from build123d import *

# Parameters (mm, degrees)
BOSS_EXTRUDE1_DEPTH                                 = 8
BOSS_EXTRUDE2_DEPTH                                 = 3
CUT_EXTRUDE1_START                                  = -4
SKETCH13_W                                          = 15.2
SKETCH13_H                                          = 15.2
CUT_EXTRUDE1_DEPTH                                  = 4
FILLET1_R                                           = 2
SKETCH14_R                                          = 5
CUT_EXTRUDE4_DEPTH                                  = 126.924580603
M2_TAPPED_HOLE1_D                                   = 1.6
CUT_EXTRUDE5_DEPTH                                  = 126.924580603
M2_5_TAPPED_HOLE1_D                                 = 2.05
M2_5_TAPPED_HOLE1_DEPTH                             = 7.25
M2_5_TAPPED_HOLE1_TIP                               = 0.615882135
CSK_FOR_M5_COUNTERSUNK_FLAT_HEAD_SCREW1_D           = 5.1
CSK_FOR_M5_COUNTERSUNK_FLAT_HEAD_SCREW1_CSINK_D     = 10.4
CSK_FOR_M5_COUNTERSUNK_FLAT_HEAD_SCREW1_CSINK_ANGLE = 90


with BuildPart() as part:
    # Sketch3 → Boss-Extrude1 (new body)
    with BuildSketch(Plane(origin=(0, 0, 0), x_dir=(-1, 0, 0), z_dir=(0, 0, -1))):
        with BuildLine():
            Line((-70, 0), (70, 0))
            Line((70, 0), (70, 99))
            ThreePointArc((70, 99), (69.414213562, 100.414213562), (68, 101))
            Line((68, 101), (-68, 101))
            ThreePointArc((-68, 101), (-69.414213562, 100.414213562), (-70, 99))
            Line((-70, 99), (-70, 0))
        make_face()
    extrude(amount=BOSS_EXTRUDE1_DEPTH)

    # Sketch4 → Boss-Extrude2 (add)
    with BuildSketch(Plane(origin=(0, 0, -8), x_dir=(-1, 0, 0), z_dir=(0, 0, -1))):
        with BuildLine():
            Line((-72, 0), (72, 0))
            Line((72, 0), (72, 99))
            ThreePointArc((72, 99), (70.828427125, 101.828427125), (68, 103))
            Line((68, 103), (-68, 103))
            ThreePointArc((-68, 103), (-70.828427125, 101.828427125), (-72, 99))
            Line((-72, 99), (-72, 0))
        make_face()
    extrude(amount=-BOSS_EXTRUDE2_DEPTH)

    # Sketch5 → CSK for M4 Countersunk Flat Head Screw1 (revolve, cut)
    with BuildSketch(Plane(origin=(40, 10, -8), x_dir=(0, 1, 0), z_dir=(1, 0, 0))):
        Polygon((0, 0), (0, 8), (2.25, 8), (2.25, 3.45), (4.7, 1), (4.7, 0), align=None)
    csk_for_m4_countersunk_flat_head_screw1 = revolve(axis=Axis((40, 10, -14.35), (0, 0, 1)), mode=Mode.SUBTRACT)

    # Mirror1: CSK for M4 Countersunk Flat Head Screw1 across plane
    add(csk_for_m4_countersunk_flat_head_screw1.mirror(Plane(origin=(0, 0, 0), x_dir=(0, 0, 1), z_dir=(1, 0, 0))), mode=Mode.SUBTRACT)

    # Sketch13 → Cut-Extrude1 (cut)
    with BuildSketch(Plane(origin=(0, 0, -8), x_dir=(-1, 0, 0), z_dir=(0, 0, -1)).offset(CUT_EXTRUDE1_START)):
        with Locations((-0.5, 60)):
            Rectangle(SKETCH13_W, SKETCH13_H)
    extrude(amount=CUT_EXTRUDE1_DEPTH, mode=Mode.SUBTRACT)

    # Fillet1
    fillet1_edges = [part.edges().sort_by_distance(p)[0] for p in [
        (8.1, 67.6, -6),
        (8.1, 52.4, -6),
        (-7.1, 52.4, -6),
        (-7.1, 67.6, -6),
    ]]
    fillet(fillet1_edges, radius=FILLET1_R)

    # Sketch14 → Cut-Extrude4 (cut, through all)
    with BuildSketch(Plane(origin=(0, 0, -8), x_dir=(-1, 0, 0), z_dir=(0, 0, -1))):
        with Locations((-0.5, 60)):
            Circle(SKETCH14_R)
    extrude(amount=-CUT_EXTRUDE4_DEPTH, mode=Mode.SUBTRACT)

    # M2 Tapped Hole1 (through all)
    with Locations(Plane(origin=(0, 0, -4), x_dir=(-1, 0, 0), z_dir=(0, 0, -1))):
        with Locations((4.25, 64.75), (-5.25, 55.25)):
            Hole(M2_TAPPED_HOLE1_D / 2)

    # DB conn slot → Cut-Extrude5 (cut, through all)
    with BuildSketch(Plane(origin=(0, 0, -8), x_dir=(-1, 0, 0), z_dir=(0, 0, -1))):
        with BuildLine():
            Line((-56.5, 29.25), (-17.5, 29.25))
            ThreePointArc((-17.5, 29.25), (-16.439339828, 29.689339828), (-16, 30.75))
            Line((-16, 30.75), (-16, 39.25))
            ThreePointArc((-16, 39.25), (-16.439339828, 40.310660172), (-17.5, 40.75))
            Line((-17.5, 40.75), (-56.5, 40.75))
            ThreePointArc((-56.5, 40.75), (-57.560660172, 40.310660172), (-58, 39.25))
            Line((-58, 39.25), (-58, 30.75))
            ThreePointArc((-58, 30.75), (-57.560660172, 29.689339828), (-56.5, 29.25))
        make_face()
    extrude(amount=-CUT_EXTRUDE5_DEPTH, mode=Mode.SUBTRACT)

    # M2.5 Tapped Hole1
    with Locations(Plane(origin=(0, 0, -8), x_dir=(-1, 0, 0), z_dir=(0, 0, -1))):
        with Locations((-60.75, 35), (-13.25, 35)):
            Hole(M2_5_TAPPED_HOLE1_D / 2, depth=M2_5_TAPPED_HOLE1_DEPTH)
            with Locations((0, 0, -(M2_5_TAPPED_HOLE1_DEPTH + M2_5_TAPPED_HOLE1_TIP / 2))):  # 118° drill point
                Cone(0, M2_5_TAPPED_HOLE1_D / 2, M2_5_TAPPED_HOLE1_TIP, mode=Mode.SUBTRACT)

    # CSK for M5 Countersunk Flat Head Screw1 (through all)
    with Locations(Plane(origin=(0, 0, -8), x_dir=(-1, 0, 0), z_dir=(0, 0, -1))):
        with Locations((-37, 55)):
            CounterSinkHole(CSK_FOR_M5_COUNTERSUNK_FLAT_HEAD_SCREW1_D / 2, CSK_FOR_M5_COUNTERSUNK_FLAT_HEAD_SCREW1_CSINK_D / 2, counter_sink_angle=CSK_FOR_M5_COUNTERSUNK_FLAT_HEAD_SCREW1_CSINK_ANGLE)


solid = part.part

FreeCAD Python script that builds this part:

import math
import FreeCAD as App
import Part
import Sketcher

V = App.Vector
Q = App.Units.Quantity


def edges_at(feature, points):
    """Names of the edges that pass closest to the given points."""
    edges = feature.Shape.Edges
    near = lambda p: min(range(len(edges)), key=lambda i: edges[i].distToShape(Part.Vertex(*p))[0])
    return sorted({f"Edge{near(p) + 1}" for p in points})


def add_polygon(sketch, points):
    """Adds a closed chain of lines whose ends are joined by coincident constraints."""
    first, n = sketch.GeometryCount, len(points)
    for a, b in zip(points, points[1:] + points[:1]):
        sketch.addGeometry(Part.LineSegment(App.Vector(*a, 0), App.Vector(*b, 0)), False)
    for i in range(n):
        sketch.addConstraint(Sketcher.Constraint("Coincident", first + i, 2, first + (i + 1) % n, 1))

doc = App.newDocument("Part")
params = doc.addObject("Spreadsheet::Sheet", "Params")
for row, (alias, value) in enumerate([
    ("sketch1_radius", "2 mm"),
    ("sketch1_width", "140 mm"),
    ("sketch1_height", "99 mm"),
    ("pad1_length", "8 mm"),
    ("sketch2_radius", "4 mm"),
    ("sketch2_width", "144 mm"),
    ("sketch2_height", "99 mm"),
    ("pad2_length", "3 mm"),
    ("sketch3_height", "8 mm"),
    ("sketch3_height2", "1 mm"),
    ("sketch3_width", "4.7 mm"),
    ("sketch3_width2", "2.25 mm"),
    ("groove_angle", "360 deg"),
    ("sketch4_width", "15.2 mm"),
    ("pocket1_length", "4 mm"),
    ("fillet_radius", "2 mm"),
    ("sketch5_diameter", "10 mm"),
    ("sketch6_diameter", "1.6 mm"),
    ("hole_diameter", "1.6 mm"),
    ("sketch7_radius", "1.5 mm"),
    ("sketch7_width", "39 mm"),
    ("sketch7_height", "8.5 mm"),
    ("sketch8_diameter", "2.05 mm"),
    ("hole2_diameter", "2.05 mm"),
    ("hole2_depth", "7.25 mm"),
    ("sketch9_diameter", "5.1 mm"),
    ("hole3_diameter", "5.1 mm"),
    ("hole3_csink_diameter", "10.4 mm"),
], start=1):
    params.set(f"A{row}", alias)
    params.set(f"B{row}", "=" + value)
    params.setAlias(f"B{row}", alias)

body = doc.addObject("PartDesign::Body", "Body")

# Sketch on XY plane
sketch1 = doc.addObject("Sketcher::SketchObject", "Sketch")
body.addObject(sketch1)
sketch1.AttachmentSupport = (doc.XY_Plane, [""])
sketch1.MapMode = "FlatFace"
sketch1.addGeometry([
    Part.LineSegment(V(70, 0, 0), V(-70, 0, 0)),  # 0
    Part.LineSegment(V(-70, 0, 0), V(-70, 99, 0)),  # 1
    Part.ArcOfCircle(Part.Circle(V(-68, 99, 0), V(0, 0, 1), 2), math.radians(90), math.radians(180)),  # 2
    Part.LineSegment(V(-68, 101, 0), V(68, 101, 0)),  # 3
    Part.ArcOfCircle(Part.Circle(V(68, 99, 0), V(0, 0, 1), 2), math.radians(0), math.radians(90)),  # 4
    Part.LineSegment(V(70, 99, 0), V(70, 0, 0)),  # 5
], False)
sketch1.addConstraint([
    Sketcher.Constraint("Coincident", 0, 2, 1, 1),
    Sketcher.Constraint("Tangent", 1, 2, 2, 2),
    Sketcher.Constraint("Tangent", 2, 1, 3, 1),
    Sketcher.Constraint("Tangent", 3, 2, 4, 2),
    Sketcher.Constraint("Tangent", 4, 1, 5, 1),
    Sketcher.Constraint("Coincident", 5, 2, 0, 1),
    Sketcher.Constraint("Horizontal", 0),
    Sketcher.Constraint("Vertical", 1),
    Sketcher.Constraint("Horizontal", 3),
    Sketcher.Constraint("Vertical", 5),
    Sketcher.Constraint("Equal", 2, 4),
    Sketcher.Constraint("Symmetric", 0, 2, 5, 2, -1, 1),
    Sketcher.Constraint("Radius", 2, Q("2 mm")),
    Sketcher.Constraint("DistanceX", 0, 2, 0, 1, Q("140 mm")),
    Sketcher.Constraint("DistanceY", 1, 1, 1, 2, Q("99 mm")),
])
sketch1.setExpression("Constraints[12]", "Params.sketch1_radius")
sketch1.setExpression("Constraints[13]", "Params.sketch1_width")
sketch1.setExpression("Constraints[14]", "Params.sketch1_height")
pad1 = doc.addObject("PartDesign::Pad", "Pad")
body.addObject(pad1)
pad1.Profile = sketch1
pad1.setExpression("Length", "Params.pad1_length")
pad1.Reversed = True

# Sketch on XY plane
sketch2 = doc.addObject("Sketcher::SketchObject", "Sketch001")
body.addObject(sketch2)
sketch2.AttachmentSupport = (doc.XY_Plane, [""])
sketch2.MapMode = "FlatFace"
sketch2.AttachmentOffset = App.Placement(V(0, 0, -8), App.Rotation())
sketch2.addGeometry([
    Part.LineSegment(V(72, 0, 0), V(-72, 0, 0)),  # 0
    Part.LineSegment(V(-72, 0, 0), V(-72, 99, 0)),  # 1
    Part.ArcOfCircle(Part.Circle(V(-68, 99, 0), V(0, 0, 1), 4), math.radians(90), math.radians(180)),  # 2
    Part.LineSegment(V(-68, 103, 0), V(68, 103, 0)),  # 3
    Part.ArcOfCircle(Part.Circle(V(68, 99, 0), V(0, 0, 1), 4), math.radians(0), math.radians(90)),  # 4
    Part.LineSegment(V(72, 99, 0), V(72, 0, 0)),  # 5
], False)
sketch2.addConstraint([
    Sketcher.Constraint("Coincident", 0, 2, 1, 1),
    Sketcher.Constraint("Tangent", 1, 2, 2, 2),
    Sketcher.Constraint("Tangent", 2, 1, 3, 1),
    Sketcher.Constraint("Tangent", 3, 2, 4, 2),
    Sketcher.Constraint("Tangent", 4, 1, 5, 1),
    Sketcher.Constraint("Coincident", 5, 2, 0, 1),
    Sketcher.Constraint("Horizontal", 0),
    Sketcher.Constraint("Vertical", 1),
    Sketcher.Constraint("Horizontal", 3),
    Sketcher.Constraint("Vertical", 5),
    Sketcher.Constraint("Equal", 2, 4),
    Sketcher.Constraint("Symmetric", 0, 2, 5, 2, -1, 1),
    Sketcher.Constraint("Radius", 2, Q("4 mm")),
    Sketcher.Constraint("DistanceX", 0, 2, 0, 1, Q("144 mm")),
    Sketcher.Constraint("DistanceY", 1, 1, 1, 2, Q("99 mm")),
])
sketch2.setExpression("Constraints[12]", "Params.sketch2_radius")
sketch2.setExpression("Constraints[13]", "Params.sketch2_width")
sketch2.setExpression("Constraints[14]", "Params.sketch2_height")
pad2 = doc.addObject("PartDesign::Pad", "Pad001")
body.addObject(pad2)
pad2.Profile = sketch2
pad2.setExpression("Length", "Params.pad2_length")

# Sketch on YZ plane
sketch3 = doc.addObject("Sketcher::SketchObject", "Sketch002")
body.addObject(sketch3)
sketch3.AttachmentSupport = (doc.YZ_Plane, [""])
sketch3.MapMode = "FlatFace"
sketch3.AttachmentOffset = App.Placement(V(0, 0, 40), App.Rotation())
add_polygon(sketch3, [(10, 0), (10, -8), (14.7, -8), (14.7, -7), (12.2, -4.5), (12.2, 0)])  # lines 0-5
sketch3.addGeometry(Part.LineSegment(V(10, -8, 0), V(10, 0, 0)), True)  # axis
sketch3.addConstraint([
    Sketcher.Constraint("Vertical", 0),
    Sketcher.Constraint("Horizontal", 1),
    Sketcher.Constraint("Vertical", 2),
    Sketcher.Constraint("Vertical", 4),
    Sketcher.Constraint("Horizontal", 5),
    Sketcher.Constraint("Vertical", 6),
    Sketcher.Constraint("Coincident", 6, 1, 0, 2),
    Sketcher.Constraint("PointOnObject", 4, 2, -1),
    Sketcher.Constraint("PointOnObject", 6, 2, -1),
    Sketcher.Constraint("DistanceY", 0, 2, 0, 1, Q("8 mm")),
    Sketcher.Constraint("DistanceY", 2, 1, 2, 2, Q("1 mm")),
    Sketcher.Constraint("Angle", 3, Q("135 deg")),
    Sketcher.Constraint("DistanceX", 1, 1, 1, 2, Q("4.7 mm")),
    Sketcher.Constraint("DistanceX", -1, 1, 0, 2, Q("10 mm")),
    Sketcher.Constraint("DistanceX", 5, 2, 5, 1, Q("2.25 mm")),
])
sketch3.setExpression("Constraints[15]", "Params.sketch3_height")
sketch3.setExpression("Constraints[16]", "Params.sketch3_height2")
sketch3.setExpression("Constraints[18]", "Params.sketch3_width")
sketch3.setExpression("Constraints[20]", "Params.sketch3_width2")
groove = doc.addObject("PartDesign::Groove", "Groove")
body.addObject(groove)
groove.Profile = sketch3
groove.ReferenceAxis = (sketch3, ["Axis0"])
groove.setExpression("Angle", "Params.groove_angle")
doc.recompute()

mirrored = doc.addObject("PartDesign::Mirrored", "Mirrored")
body.addObject(mirrored)
mirrored.Originals = [groove]
mirrored.MirrorPlane = (doc.YZ_Plane, [""])
body.Tip = mirrored

# Sketch on XY plane
sketch4 = doc.addObject("Sketcher::SketchObject", "Sketch003")
body.addObject(sketch4)
sketch4.AttachmentSupport = (doc.XY_Plane, [""])
sketch4.MapMode = "FlatFace"
sketch4.AttachmentOffset = App.Placement(V(0, 0, -4), App.Rotation())
add_polygon(sketch4, [(8, 68), (8, 52), (-7, 52), (-7, 68)])  # lines 0-3
sketch4.addConstraint([
    Sketcher.Constraint("Vertical", 0),
    Sketcher.Constraint("Horizontal", 1),
    Sketcher.Constraint("Vertical", 2),
    Sketcher.Constraint("Horizontal", 3),
    Sketcher.Constraint("Equal", 3, 0),
    Sketcher.Constraint("DistanceX", 1, 2, 1, 1, Q("15.2 mm")),
    Sketcher.Constraint("DistanceX", -1, 1, 0, 2, Q("8.1 mm")),
    Sketcher.Constraint("DistanceY", -1, 1, 0, 2, Q("52.4 mm")),
])
sketch4.setExpression("Constraints[9]", "Params.sketch4_width")
pocket1 = doc.addObject("PartDesign::Pocket", "Pocket")
body.addObject(pocket1)
pocket1.Profile = sketch4
pocket1.setExpression("Length", "Params.pocket1_length")
doc.recompute()

fillet = doc.addObject("PartDesign::Fillet", "Fillet")
body.addObject(fillet)
fillet.Base = (pocket1, edges_at(pocket1, [
    (8.1, 67.6, -6),
    (8.1, 52.4, -6),
    (-7.1, 52.4, -6),
    (-7.1, 67.6, -6),
]))
fillet.setExpression("Radius", "Params.fillet_radius")

# Sketch on XY plane
sketch5 = doc.addObject("Sketcher::SketchObject", "Sketch004")
body.addObject(sketch5)
sketch5.AttachmentSupport = (doc.XY_Plane, [""])
sketch5.MapMode = "FlatFace"
sketch5.AttachmentOffset = App.Placement(V(0, 0, -8), App.Rotation())
sketch5.addGeometry(Part.Circle(V(0, 60, 0), V(0, 0, 1), 5), False)
sketch5.addConstraint([
    Sketcher.Constraint("Diameter", 0, Q("10 mm")),
    Sketcher.Constraint("DistanceY", -1, 1, 0, 3, Q("60 mm")),
    Sketcher.Constraint("DistanceX", -1, 1, 0, 3, Q("0.5 mm")),
])
sketch5.setExpression("Constraints[0]", "Params.sketch5_diameter")
pocket2 = doc.addObject("PartDesign::Pocket", "Pocket001")
body.addObject(pocket2)
pocket2.Profile = sketch5
pocket2.Type = "ThroughAll"
pocket2.Reversed = True

# Sketch on XY plane
sketch6 = doc.addObject("Sketcher::SketchObject", "Sketch005")
body.addObject(sketch6)
sketch6.AttachmentSupport = (doc.XY_Plane, [""])
sketch6.MapMode = "FlatFace"
sketch6.AttachmentOffset = App.Placement(V(0, 0, -4), App.Rotation())
sketch6.addGeometry([
    Part.Circle(V(-4.2, 64.8, 0), V(0, 0, 1), 0.8),
    Part.Circle(V(5.2, 55.2, 0), V(0, 0, 1), 0.8),
], False)
sketch6.addConstraint([
    Sketcher.Constraint("Equal", 0, 1),
    Sketcher.Constraint("Diameter", 0, Q("1.6 mm")),
    Sketcher.Constraint("DistanceX", 0, 3, 1, 3, Q("9.5 mm")),
    Sketcher.Constraint("DistanceY", 1, 3, 0, 3, Q("9.5 mm")),
    Sketcher.Constraint("DistanceX", 0, 3, -1, 1, Q("4.25 mm")),
    Sketcher.Constraint("DistanceY", -1, 1, 0, 3, Q("64.75 mm")),
])
sketch6.setExpression("Constraints[1]", "Params.sketch6_diameter")
doc.recompute()
hole = doc.addObject("PartDesign::Hole", "Hole")
body.addObject(hole)
hole.Profile = sketch6
hole.ThreadType = "None"
hole.setExpression("Diameter", "Params.hole_diameter")
hole.DepthType = "ThroughAll"
hole.Reversed = True

# Sketch on XY plane
sketch7 = doc.addObject("Sketcher::SketchObject", "Sketch006")
body.addObject(sketch7)
sketch7.AttachmentSupport = (doc.XY_Plane, [""])
sketch7.MapMode = "FlatFace"
sketch7.AttachmentOffset = App.Placement(V(0, 0, -8), App.Rotation())
sketch7.addGeometry([
    Part.LineSegment(V(56.5, 29.2, 0), V(17.5, 29.2, 0)),  # 0
    Part.ArcOfCircle(Part.Circle(V(17.5, 30.7, 0), V(0, 0, 1), 1.5), math.radians(180), math.radians(270)),  # 1
    Part.LineSegment(V(16, 30.8, 0), V(16, 39.2, 0)),  # 2
    Part.ArcOfCircle(Part.Circle(V(17.5, 39.3, 0), V(0, 0, 1), 1.5), math.radians(90), math.radians(180)),  # 3
    Part.LineSegment(V(17.5, 40.8, 0), V(56.5, 40.8, 0)),  # 4
    Part.ArcOfCircle(Part.Circle(V(56.5, 39.3, 0), V(0, 0, 1), 1.5), math.radians(0), math.radians(90)),  # 5
    Part.LineSegment(V(58, 39.2, 0), V(58, 30.8, 0)),  # 6
    Part.ArcOfCircle(Part.Circle(V(56.5, 30.7, 0), V(0, 0, 1), 1.5), math.radians(-90), math.radians(0)),  # 7
], False)
sketch7.addConstraint([
    Sketcher.Constraint("Tangent", 0, 2, 1, 2),
    Sketcher.Constraint("Tangent", 1, 1, 2, 1),
    Sketcher.Constraint("Tangent", 2, 2, 3, 2),
    Sketcher.Constraint("Tangent", 3, 1, 4, 1),
    Sketcher.Constraint("Tangent", 4, 2, 5, 2),
    Sketcher.Constraint("Tangent", 5, 1, 6, 1),
    Sketcher.Constraint("Tangent", 6, 2, 7, 2),
    Sketcher.Constraint("Tangent", 7, 1, 0, 1),
    Sketcher.Constraint("Horizontal", 0),
    Sketcher.Constraint("Vertical", 2),
    Sketcher.Constraint("Horizontal", 4),
    Sketcher.Constraint("Vertical", 6),
    Sketcher.Constraint("Equal", 1, 3),
    Sketcher.Constraint("Equal", 3, 5),
    Sketcher.Constraint("Equal", 5, 7),
    Sketcher.Constraint("Radius", 1, Q("1.5 mm")),
    Sketcher.Constraint("DistanceX", 0, 2, 0, 1, Q("39 mm")),
    Sketcher.Constraint("DistanceY", 2, 1, 2, 2, Q("8.5 mm")),
    Sketcher.Constraint("DistanceX", -1, 1, 1, 1, Q("16 mm")),
    Sketcher.Constraint("DistanceY", -1, 1, 1, 3, Q("30.75 mm")),
])
sketch7.setExpression("Constraints[15]", "Params.sketch7_radius")
sketch7.setExpression("Constraints[16]", "Params.sketch7_width")
sketch7.setExpression("Constraints[17]", "Params.sketch7_height")
pocket3 = doc.addObject("PartDesign::Pocket", "Pocket002")
body.addObject(pocket3)
pocket3.Profile = sketch7
pocket3.Type = "ThroughAll"
pocket3.Reversed = True

# Sketch on XY plane
sketch8 = doc.addObject("Sketcher::SketchObject", "Sketch007")
body.addObject(sketch8)
sketch8.AttachmentSupport = (doc.XY_Plane, [""])
sketch8.MapMode = "FlatFace"
sketch8.AttachmentOffset = App.Placement(V(0, 0, -8), App.Rotation())
sketch8.addGeometry([
    Part.Circle(V(60.8, 35, 0), V(0, 0, 1), 1),
    Part.Circle(V(13.2, 35, 0), V(0, 0, 1), 1),
], False)
sketch8.addConstraint([
    Sketcher.Constraint("Equal", 0, 1),
    Sketcher.Constraint("Horizontal", 0, 3, 1, 3),
    Sketcher.Constraint("Diameter", 0, Q("2.05 mm")),
    Sketcher.Constraint("DistanceY", -1, 1, 0, 3, Q("35 mm")),
    Sketcher.Constraint("DistanceX", 1, 3, 0, 3, Q("47.5 mm")),
    Sketcher.Constraint("DistanceX", -1, 1, 0, 3, Q("60.75 mm")),
])
sketch8.setExpression("Constraints[2]", "Params.sketch8_diameter")
doc.recompute()
hole2 = doc.addObject("PartDesign::Hole", "Hole001")
body.addObject(hole2)
hole2.Profile = sketch8
hole2.ThreadType = "None"
hole2.setExpression("Diameter", "Params.hole2_diameter")
hole2.DepthType = "Dimension"
hole2.setExpression("Depth", "Params.hole2_depth")
hole2.DrillPoint = "Angled"
hole2.DrillPointAngle = 118
hole2.Reversed = True

# Sketch on XY plane
sketch9 = doc.addObject("Sketcher::SketchObject", "Sketch008")
body.addObject(sketch9)
sketch9.AttachmentSupport = (doc.XY_Plane, [""])
sketch9.MapMode = "FlatFace"
sketch9.AttachmentOffset = App.Placement(V(0, 0, -8), App.Rotation())
sketch9.addGeometry(Part.Circle(V(37, 55, 0), V(0, 0, 1), 2.5), False)
sketch9.addConstraint([
    Sketcher.Constraint("Diameter", 0, Q("5.1 mm")),
    Sketcher.Constraint("DistanceX", -1, 1, 0, 3, Q("37 mm")),
    Sketcher.Constraint("DistanceY", -1, 1, 0, 3, Q("55 mm")),
])
sketch9.setExpression("Constraints[0]", "Params.sketch9_diameter")
doc.recompute()
hole3 = doc.addObject("PartDesign::Hole", "Hole002")
body.addObject(hole3)
hole3.Profile = sketch9
hole3.ThreadType = "None"
hole3.setExpression("Diameter", "Params.hole3_diameter")
hole3.DepthType = "ThroughAll"
hole3.HoleCutType = "Countersink"
hole3.setExpression("HoleCutDiameter", "Params.hole3_csink_diameter")
hole3.HoleCutCountersinkAngle = 90
hole3.Reversed = True

doc.recompute()
